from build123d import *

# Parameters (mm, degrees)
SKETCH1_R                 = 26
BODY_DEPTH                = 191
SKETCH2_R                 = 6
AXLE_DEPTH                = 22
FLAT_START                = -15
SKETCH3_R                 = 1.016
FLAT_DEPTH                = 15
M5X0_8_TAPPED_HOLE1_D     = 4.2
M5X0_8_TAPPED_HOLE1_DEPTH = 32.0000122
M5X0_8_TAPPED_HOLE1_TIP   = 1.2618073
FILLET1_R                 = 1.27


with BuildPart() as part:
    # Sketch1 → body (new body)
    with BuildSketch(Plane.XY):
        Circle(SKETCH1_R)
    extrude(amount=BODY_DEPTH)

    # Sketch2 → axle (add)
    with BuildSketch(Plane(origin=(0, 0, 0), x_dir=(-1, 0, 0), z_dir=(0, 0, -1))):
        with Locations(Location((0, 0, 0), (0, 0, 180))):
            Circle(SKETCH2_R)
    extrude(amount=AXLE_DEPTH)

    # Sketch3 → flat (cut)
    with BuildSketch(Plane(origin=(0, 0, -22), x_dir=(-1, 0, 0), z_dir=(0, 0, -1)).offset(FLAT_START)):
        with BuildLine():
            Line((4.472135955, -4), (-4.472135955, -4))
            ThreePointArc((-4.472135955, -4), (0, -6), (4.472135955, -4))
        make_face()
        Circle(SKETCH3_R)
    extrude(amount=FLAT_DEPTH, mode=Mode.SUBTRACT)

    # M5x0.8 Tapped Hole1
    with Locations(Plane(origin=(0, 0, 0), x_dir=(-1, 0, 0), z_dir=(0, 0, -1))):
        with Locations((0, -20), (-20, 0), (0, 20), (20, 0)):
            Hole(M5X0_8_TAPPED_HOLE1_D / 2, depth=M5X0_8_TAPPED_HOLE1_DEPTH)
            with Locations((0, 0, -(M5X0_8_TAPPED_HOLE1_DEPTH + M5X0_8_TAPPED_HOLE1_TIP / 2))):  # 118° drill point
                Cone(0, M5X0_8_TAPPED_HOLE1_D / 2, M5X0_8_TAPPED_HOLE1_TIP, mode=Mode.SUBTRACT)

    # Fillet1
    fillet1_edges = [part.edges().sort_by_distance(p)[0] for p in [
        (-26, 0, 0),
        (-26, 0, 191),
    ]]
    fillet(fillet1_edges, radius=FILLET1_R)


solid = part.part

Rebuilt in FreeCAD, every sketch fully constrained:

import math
import FreeCAD as App
import Part
import Sketcher
from FreeCAD import Vector


def edges_at(feature, points):
    """Names of the edges that pass closest to the given points."""
    edges = feature.Shape.Edges
    near = lambda p: min(range(len(edges)), key=lambda i: edges[i].distToShape(Part.Vertex(*p))[0])
    return sorted({f"Edge{near(p) + 1}" for p in points})

doc = App.newDocument("Part")
body = doc.addObject("PartDesign::Body", "Body")

# Sketch on XY plane
sketch1 = body.newObject("Sketcher::SketchObject", "Sketch")
sketch1.AttachmentSupport = (doc.getObject("XY_Plane"), [""])
sketch1.MapMode = "FlatFace"
sketch1.addGeometry(Part.Circle(Vector(0, 0, 0), Vector(0, 0, 1), 26), False)
sketch1.addConstraint([
    Sketcher.Constraint("Coincident", 0, 3, -1, 1),
    Sketcher.Constraint("Diameter", 0, 52.0),
])
pad1 = body.newObject("PartDesign::Pad", "Pad")
pad1.Profile = sketch1
pad1.Length = 191

# Sketch on XY plane
sketch2 = body.newObject("Sketcher::SketchObject", "Sketch001")
sketch2.AttachmentSupport = (doc.getObject("XY_Plane"), [""])
sketch2.MapMode = "FlatFace"
sketch2.addGeometry(Part.Circle(Vector(0, 0, 0), Vector(0, 0, 1), 6), False)
sketch2.addConstraint([
    Sketcher.Constraint("Coincident", 0, 3, -1, 1),
    Sketcher.Constraint("Diameter", 0, 12.0),
])
pad2 = body.newObject("PartDesign::Pad", "Pad001")
pad2.Profile = sketch2
pad2.Length = 22
pad2.Reversed = True

# Sketch on XY plane
sketch3 = body.newObject("Sketcher::SketchObject", "Sketch002")
sketch3.AttachmentSupport = (doc.getObject("XY_Plane"), [""])
sketch3.MapMode = "FlatFace"
sketch3.AttachmentOffset = App.Placement(Vector(0, 0, -7), App.Rotation())
sketch3.addGeometry([
    Part.LineSegment(Vector(-4.472136, -4, 0), Vector(4.472136, -4, 0)),
    Part.ArcOfCircle(Part.Circle(Vector(0, 0, 0), Vector(0, 0, 1), 6), math.radians(-138.189685), math.radians(-41.810315)),
    Part.Circle(Vector(0, 0, 0), Vector(0, 0, 1), 1.016),
], False)
sketch3.addConstraint([
    Sketcher.Constraint("Coincident", 0, 1, 1, 1),
    Sketcher.Constraint("Coincident", 1, 2, 0, 2),
    Sketcher.Constraint("Horizontal", 0),
    Sketcher.Constraint("Coincident", 1, 3, -1, 1),
    Sketcher.Constraint("Coincident", 2, 3, -1, 1),
    Sketcher.Constraint("Radius", 1, 6.0),
    Sketcher.Constraint("Diameter", 2, 2.032),
    Sketcher.Constraint("DistanceY", 0, 1, -1, 1, 4.0),
])
pocket1 = body.newObject("PartDesign::Pocket", "Pocket")
pocket1.Profile = sketch3
pocket1.Length = 15

# Sketch on XY plane
sketch4 = body.newObject("Sketcher::SketchObject", "Sketch003")
sketch4.AttachmentSupport = (doc.getObject("XY_Plane"), [""])
sketch4.MapMode = "FlatFace"
sketch4.addGeometry([
    Part.Circle(Vector(0, -20, 0), Vector(0, 0, 1), 2.1),
    Part.Circle(Vector(20, 0, 0), Vector(0, 0, 1), 2.1),
    Part.Circle(Vector(0, 20, 0), Vector(0, 0, 1), 2.1),
    Part.Circle(Vector(-20, 0, 0), Vector(0, 0, 1), 2.1),
], False)
sketch4.addConstraint([
    Sketcher.Constraint("Equal", 0, 1),
    Sketcher.Constraint("Equal", 1, 2),
    Sketcher.Constraint("Equal", 2, 3),
    Sketcher.Constraint("Symmetric", 0, 3, 2, 3, -1, 1),
    Sketcher.Constraint("Symmetric", 1, 3, 3, 3, -1, 1),
    Sketcher.Constraint("PointOnObject", 0, 3, -2),
    Sketcher.Constraint("PointOnObject", 1, 3, -1),
    Sketcher.Constraint("Diameter", 0, 4.2),
    Sketcher.Constraint("DistanceY", 0, 3, -1, 1, 20.0),
    Sketcher.Constraint("DistanceX", -1, 1, 1, 3, 20.0),
])
doc.recompute()
hole = body.newObject("PartDesign::Hole", "Hole")
hole.Profile = sketch4
hole.ThreadType = "None"
hole.Diameter = 4.2
hole.DepthType = "Dimension"
hole.Depth = 32.000012
hole.DrillPoint = "Angled"
hole.DrillPointAngle = 118
hole.Reversed = True
doc.recompute()

fillet = body.newObject("PartDesign::Fillet", "Fillet")
fillet.Base = (hole, edges_at(hole, [(-26, 0, 0), (-26, 0, 191)]))
fillet.Radius = 1.27

doc.recompute()
